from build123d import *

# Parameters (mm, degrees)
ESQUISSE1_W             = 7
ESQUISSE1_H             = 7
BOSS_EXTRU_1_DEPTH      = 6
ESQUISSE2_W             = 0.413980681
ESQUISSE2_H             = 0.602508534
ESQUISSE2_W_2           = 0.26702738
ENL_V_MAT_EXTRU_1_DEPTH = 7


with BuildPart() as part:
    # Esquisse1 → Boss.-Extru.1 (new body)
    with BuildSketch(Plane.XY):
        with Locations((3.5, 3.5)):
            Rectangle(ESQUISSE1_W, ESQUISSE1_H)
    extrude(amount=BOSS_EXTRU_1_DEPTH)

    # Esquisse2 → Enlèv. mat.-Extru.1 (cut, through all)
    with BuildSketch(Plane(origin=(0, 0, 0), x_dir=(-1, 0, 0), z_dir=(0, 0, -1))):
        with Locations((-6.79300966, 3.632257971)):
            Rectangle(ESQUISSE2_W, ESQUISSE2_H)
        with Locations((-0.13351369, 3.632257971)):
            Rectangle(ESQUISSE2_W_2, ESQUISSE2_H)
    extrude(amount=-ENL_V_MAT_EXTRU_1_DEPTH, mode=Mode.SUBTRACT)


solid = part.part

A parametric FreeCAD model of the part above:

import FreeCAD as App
import Part
import Sketcher

V = App.Vector
Q = App.Units.Quantity


def add_polygon(sketch, points):
    """Adds a closed chain of lines whose ends are joined by coincident constraints."""
    first, n = sketch.GeometryCount, len(points)
    for a, b in zip(points, points[1:] + points[:1]):
        sketch.addGeometry(Part.LineSegment(App.Vector(*a, 0), App.Vector(*b, 0)), False)
    for i in range(n):
        sketch.addConstraint(Sketcher.Constraint("Coincident", first + i, 2, first + (i + 1) % n, 1))

doc = App.newDocument("Part")
body = doc.addObject("PartDesign::Body", "Body")

# Sketch on XY plane
sketch1 = doc.addObject("Sketcher::SketchObject", "Sketch")
body.addObject(sketch1)
sketch1.AttachmentSupport = (doc.XY_Plane, [""])
sketch1.MapMode = "FlatFace"
add_polygon(sketch1, [(0, 7), (0, 0), (7, 0), (7, 7)])  # lines 0-3
sketch1.addConstraint(Sketcher.Constraint("Vertical", 0))
sketch1.addConstraint(Sketcher.Constraint("Horizontal", 1))
sketch1.addConstraint(Sketcher.Constraint("Vertical", 2))
sketch1.addConstraint(Sketcher.Constraint("Horizontal", 3))
sketch1.addConstraint(Sketcher.Constraint("Coincident", 0, 2, -1, 1))
sketch1.addConstraint(Sketcher.Constraint("Equal", 3, 0))
sketch1.addConstraint(Sketcher.Constraint("DistanceX", 1, 1, 1, 2, Q("7 mm")))
pad1 = doc.addObject("PartDesign::Pad", "Pad")
body.addObject(pad1)
pad1.Profile = sketch1
pad1.Length = 6

# Sketch on XY plane
sketch2 = doc.addObject("Sketcher::SketchObject", "Sketch001")
body.addObject(sketch2)
sketch2.AttachmentSupport = (doc.XY_Plane, [""])
sketch2.MapMode = "FlatFace"
add_polygon(sketch2, [(7, 3.93), (7, 3.33), (6.59, 3.33), (6.59, 3.93)])  # lines 0-3
add_polygon(sketch2, [(0.27, 3.93), (0.27, 3.33), (0, 3.33), (0, 3.93)])  # lines 4-7
sketch2.addConstraint(Sketcher.Constraint("Vertical", 0))
sketch2.addConstraint(Sketcher.Constraint("Horizontal", 1))
sketch2.addConstraint(Sketcher.Constraint("Vertical", 2))
sketch2.addConstraint(Sketcher.Constraint("Horizontal", 3))
sketch2.addConstraint(Sketcher.Constraint("Vertical", 4))
sketch2.addConstraint(Sketcher.Constraint("Horizontal", 5))
sketch2.addConstraint(Sketcher.Constraint("Vertical", 6))
sketch2.addConstraint(Sketcher.Constraint("Horizontal", 7))
sketch2.addConstraint(Sketcher.Constraint("PointOnObject", 5, 2, -2))
sketch2.addConstraint(Sketcher.Constraint("Horizontal", 1, 2, 4, 2))
sketch2.addConstraint(Sketcher.Constraint("Horizontal", 3, 2, 6, 2))
sketch2.addConstraint(Sketcher.Constraint("DistanceX", -1, 1, 0, 2, Q("7 mm")))
sketch2.addConstraint(Sketcher.Constraint("DistanceX", 1, 2, 1, 1, Q("0.413981 mm")))
sketch2.addConstraint(Sketcher.Constraint("DistanceY", 0, 2, 0, 1, Q("0.602509 mm")))
sketch2.addConstraint(Sketcher.Constraint("DistanceX", 5, 2, 5, 1, Q("0.267027 mm")))
sketch2.addConstraint(Sketcher.Constraint("DistanceY", -1, 1, 0, 2, Q("3.331004 mm")))
pocket1 = doc.addObject("PartDesign::Pocket", "Pocket")
body.addObject(pocket1)
pocket1.Profile = sketch2
pocket1.Type = "ThroughAll"
pocket1.Reversed = True

doc.recompute()
